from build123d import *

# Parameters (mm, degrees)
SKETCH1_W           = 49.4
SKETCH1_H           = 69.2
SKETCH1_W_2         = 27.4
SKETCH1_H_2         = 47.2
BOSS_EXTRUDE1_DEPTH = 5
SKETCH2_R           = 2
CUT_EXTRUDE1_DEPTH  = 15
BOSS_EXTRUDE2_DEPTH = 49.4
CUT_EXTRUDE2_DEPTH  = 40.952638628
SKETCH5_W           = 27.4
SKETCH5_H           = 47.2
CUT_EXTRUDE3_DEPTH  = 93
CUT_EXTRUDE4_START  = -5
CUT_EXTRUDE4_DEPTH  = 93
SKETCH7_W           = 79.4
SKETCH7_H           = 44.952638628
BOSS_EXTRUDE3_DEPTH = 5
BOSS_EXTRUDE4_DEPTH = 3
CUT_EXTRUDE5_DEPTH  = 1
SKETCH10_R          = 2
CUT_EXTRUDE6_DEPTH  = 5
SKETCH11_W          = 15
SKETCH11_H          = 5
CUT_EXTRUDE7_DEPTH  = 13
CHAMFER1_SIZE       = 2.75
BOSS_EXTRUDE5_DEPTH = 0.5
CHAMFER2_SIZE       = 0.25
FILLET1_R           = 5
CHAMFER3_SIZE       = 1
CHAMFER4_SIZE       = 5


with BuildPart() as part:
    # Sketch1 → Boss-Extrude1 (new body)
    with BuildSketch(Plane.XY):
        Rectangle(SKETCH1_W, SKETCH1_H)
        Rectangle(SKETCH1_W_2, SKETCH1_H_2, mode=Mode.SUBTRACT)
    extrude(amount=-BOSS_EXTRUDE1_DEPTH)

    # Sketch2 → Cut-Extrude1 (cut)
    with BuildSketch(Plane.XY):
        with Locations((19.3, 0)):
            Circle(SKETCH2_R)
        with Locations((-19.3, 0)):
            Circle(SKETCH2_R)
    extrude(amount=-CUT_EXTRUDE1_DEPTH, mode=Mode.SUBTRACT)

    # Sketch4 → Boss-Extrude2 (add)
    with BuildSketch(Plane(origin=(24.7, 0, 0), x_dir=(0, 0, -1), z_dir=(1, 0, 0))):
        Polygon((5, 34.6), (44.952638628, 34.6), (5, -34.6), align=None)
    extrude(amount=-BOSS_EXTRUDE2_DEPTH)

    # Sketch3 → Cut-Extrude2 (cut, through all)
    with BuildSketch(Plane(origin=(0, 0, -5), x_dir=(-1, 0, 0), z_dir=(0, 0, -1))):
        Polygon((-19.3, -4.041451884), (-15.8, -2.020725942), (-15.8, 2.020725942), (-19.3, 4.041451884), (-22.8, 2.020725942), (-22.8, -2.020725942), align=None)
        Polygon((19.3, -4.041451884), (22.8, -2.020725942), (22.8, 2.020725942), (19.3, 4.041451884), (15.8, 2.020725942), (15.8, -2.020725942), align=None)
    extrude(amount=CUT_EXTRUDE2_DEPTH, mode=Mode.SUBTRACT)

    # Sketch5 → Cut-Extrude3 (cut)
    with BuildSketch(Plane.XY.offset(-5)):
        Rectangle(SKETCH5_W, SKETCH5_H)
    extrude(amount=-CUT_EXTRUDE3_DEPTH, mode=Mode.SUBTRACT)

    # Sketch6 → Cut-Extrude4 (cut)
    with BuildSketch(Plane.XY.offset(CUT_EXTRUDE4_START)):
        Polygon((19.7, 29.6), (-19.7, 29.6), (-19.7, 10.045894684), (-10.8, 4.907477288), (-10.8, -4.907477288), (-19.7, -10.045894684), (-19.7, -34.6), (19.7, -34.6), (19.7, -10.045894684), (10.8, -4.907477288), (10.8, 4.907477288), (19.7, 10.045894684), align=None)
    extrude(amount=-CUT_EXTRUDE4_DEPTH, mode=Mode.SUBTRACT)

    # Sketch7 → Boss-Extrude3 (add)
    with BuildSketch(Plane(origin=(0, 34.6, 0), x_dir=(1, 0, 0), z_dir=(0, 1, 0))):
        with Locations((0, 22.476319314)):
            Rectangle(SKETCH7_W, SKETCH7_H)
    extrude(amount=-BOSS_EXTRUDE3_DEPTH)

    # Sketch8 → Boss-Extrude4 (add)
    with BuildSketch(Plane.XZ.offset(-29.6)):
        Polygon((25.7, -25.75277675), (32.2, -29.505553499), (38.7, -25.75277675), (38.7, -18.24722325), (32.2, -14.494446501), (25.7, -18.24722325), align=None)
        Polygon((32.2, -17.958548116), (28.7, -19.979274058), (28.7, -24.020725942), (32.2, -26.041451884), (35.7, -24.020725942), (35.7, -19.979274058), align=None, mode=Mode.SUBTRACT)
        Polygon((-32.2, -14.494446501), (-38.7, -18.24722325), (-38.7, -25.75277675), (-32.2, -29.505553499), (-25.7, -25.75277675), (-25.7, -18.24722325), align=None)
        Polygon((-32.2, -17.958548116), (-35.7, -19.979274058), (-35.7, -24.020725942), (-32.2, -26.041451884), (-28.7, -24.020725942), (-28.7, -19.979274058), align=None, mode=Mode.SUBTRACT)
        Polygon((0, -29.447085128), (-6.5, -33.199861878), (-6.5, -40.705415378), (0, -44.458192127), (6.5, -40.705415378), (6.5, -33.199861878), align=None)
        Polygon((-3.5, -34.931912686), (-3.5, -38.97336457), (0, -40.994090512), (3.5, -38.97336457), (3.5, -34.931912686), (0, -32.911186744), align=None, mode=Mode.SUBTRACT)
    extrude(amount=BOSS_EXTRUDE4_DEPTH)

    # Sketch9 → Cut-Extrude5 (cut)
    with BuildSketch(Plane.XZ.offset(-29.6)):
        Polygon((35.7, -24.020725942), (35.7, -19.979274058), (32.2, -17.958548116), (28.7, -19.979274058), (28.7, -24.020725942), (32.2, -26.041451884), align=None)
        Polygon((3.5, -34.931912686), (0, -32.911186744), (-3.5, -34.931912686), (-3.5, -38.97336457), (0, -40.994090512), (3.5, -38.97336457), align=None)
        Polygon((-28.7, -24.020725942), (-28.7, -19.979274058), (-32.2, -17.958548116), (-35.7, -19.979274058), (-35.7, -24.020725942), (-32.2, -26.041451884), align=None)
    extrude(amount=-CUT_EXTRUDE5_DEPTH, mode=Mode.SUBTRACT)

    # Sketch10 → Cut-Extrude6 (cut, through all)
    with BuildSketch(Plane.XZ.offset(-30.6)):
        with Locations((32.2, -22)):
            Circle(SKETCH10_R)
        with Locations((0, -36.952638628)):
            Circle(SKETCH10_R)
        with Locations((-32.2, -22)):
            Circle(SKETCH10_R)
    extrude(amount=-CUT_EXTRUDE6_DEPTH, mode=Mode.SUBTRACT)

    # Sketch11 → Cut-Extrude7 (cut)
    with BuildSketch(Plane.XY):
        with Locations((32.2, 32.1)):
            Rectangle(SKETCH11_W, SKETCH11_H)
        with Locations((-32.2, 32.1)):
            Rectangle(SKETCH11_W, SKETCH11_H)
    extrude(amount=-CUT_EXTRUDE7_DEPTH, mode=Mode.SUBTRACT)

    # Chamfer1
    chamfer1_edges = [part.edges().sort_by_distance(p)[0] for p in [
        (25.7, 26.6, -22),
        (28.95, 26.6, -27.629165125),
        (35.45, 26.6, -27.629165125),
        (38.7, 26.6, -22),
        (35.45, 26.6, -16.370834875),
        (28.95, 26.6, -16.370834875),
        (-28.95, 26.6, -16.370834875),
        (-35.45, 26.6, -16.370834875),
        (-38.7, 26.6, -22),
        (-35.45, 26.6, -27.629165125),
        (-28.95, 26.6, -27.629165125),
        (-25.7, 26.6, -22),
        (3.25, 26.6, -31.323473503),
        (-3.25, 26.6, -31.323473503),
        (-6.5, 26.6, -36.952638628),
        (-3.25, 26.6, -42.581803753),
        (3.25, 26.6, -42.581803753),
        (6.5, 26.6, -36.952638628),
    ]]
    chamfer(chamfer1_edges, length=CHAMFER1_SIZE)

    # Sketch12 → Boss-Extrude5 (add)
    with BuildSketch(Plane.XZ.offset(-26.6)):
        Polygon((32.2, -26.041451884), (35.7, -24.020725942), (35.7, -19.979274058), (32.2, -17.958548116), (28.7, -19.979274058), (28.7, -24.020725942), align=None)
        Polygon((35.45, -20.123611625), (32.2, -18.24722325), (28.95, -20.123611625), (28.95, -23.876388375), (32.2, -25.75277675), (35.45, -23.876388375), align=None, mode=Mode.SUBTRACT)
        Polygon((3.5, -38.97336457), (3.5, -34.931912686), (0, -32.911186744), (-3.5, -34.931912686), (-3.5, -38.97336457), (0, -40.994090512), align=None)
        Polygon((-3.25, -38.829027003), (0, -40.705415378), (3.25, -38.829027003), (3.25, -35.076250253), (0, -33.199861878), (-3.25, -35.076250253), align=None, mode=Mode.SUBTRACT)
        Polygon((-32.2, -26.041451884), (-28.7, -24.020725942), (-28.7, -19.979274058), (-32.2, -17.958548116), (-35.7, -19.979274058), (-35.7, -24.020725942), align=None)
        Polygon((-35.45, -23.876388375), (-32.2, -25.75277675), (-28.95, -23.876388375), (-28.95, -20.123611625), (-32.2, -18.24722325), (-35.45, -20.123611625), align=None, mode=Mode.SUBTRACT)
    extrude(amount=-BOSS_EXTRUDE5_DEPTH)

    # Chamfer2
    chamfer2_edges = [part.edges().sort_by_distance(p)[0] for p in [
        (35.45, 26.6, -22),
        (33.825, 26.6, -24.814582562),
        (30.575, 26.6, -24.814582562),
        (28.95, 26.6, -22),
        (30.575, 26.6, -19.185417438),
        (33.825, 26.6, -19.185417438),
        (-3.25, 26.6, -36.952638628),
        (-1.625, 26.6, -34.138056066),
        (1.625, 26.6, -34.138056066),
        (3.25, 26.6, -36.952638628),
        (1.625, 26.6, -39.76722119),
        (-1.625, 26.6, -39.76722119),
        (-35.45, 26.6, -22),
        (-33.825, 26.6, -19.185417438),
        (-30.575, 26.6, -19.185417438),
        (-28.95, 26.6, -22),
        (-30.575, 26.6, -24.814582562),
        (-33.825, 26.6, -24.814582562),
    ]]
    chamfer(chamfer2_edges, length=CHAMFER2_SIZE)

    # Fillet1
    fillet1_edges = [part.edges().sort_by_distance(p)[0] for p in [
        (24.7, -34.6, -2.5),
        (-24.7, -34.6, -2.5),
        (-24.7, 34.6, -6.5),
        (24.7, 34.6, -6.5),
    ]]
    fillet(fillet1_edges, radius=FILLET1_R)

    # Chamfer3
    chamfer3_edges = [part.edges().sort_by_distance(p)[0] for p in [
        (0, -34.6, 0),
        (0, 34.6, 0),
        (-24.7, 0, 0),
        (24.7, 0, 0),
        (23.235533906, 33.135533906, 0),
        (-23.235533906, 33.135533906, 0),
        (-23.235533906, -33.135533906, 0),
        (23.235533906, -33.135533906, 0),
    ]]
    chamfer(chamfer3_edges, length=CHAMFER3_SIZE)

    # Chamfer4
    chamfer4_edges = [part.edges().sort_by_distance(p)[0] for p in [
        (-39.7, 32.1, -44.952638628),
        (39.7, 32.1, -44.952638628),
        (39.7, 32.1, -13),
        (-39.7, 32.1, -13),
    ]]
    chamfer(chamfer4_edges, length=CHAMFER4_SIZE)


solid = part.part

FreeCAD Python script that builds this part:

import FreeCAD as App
import Part
import Sketcher

V = App.Vector
Q = App.Units.Quantity


def edges_at(feature, points):
    """Names of the edges that pass closest to the given points."""
    edges = feature.Shape.Edges
    near = lambda p: min(range(len(edges)), key=lambda i: edges[i].distToShape(Part.Vertex(*p))[0])
    return sorted({f"Edge{near(p) + 1}" for p in points})


def add_polygon(sketch, points):
    """Adds a closed chain of lines whose ends are joined by coincident constraints."""
    first, n = sketch.GeometryCount, len(points)
    for a, b in zip(points, points[1:] + points[:1]):
        sketch.addGeometry(Part.LineSegment(App.Vector(*a, 0), App.Vector(*b, 0)), False)
    for i in range(n):
        sketch.addConstraint(Sketcher.Constraint("Coincident", first + i, 2, first + (i + 1) % n, 1))

doc = App.newDocument("Part")
body = doc.addObject("PartDesign::Body", "Body")

# Sketch on XY plane
sketch1 = doc.addObject("Sketcher::SketchObject", "Sketch")
body.addObject(sketch1)
sketch1.AttachmentSupport = (doc.XY_Plane, [""])
sketch1.MapMode = "FlatFace"
add_polygon(sketch1, [(-25, 35), (-25, -35), (25, -35), (25, 35)])  # lines 0-3
add_polygon(sketch1, [(14, -24), (-14, -24), (-14, 24), (14, 24)])  # lines 4-7
sketch1.addConstraint([
    Sketcher.Constraint("Vertical", 0),
    Sketcher.Constraint("Horizontal", 1),
    Sketcher.Constraint("Vertical", 2),
    Sketcher.Constraint("Horizontal", 3),
    Sketcher.Constraint("Horizontal", 4),
    Sketcher.Constraint("Vertical", 5),
    Sketcher.Constraint("Horizontal", 6),
    Sketcher.Constraint("Vertical", 7),
    Sketcher.Constraint("Symmetric", 0, 2, 2, 2, -1, 1),
    Sketcher.Constraint("Symmetric", 4, 2, 6, 2, -1, 1),
    Sketcher.Constraint("DistanceX", 1, 1, 1, 2, 49.4),
    Sketcher.Constraint("DistanceX", 4, 2, 4, 1, 27.4),
    Sketcher.Constraint("DistanceY", 0, 2, 0, 1, 69.2),
    Sketcher.Constraint("DistanceY", 5, 1, 5, 2, 47.2),
])
pad1 = doc.addObject("PartDesign::Pad", "Pad")
body.addObject(pad1)
pad1.Profile = sketch1
pad1.Length = 5
pad1.Reversed = True

# Sketch on XY plane
sketch2 = doc.addObject("Sketcher::SketchObject", "Sketch001")
body.addObject(sketch2)
sketch2.AttachmentSupport = (doc.XY_Plane, [""])
sketch2.MapMode = "FlatFace"
sketch2.addGeometry([
    Part.Circle(V(19.3, 0, 0), V(0, 0, 1), 2),
    Part.Circle(V(-19.3, 0, 0), V(0, 0, 1), 2),
], False)
sketch2.addConstraint([
    Sketcher.Constraint("Equal", 0, 1),
    Sketcher.Constraint("Symmetric", 0, 3, 1, 3, -1, 1),
    Sketcher.Constraint("PointOnObject", 0, 3, -1),
    Sketcher.Constraint("Diameter", 0, 4.0),
    Sketcher.Constraint("DistanceX", -1, 1, 0, 3, 19.3),
])
pocket1 = doc.addObject("PartDesign::Pocket", "Pocket")
body.addObject(pocket1)
pocket1.Profile = sketch2
pocket1.Length = 15

# Sketch on YZ plane
sketch3 = doc.addObject("Sketcher::SketchObject", "Sketch002")
body.addObject(sketch3)
sketch3.AttachmentSupport = (doc.YZ_Plane, [""])
sketch3.MapMode = "FlatFace"
sketch3.AttachmentOffset = App.Placement(V(0, 0, 24.7), App.Rotation())
add_polygon(sketch3, [(35, -45), (35, -5), (-35, -5)])  # lines 0-2
sketch3.addConstraint([
    Sketcher.Constraint("Vertical", 0),
    Sketcher.Constraint("Horizontal", 1),
    Sketcher.Constraint("Angle", 2, Q("-30 deg")),
    Sketcher.Constraint("DistanceX", 1, 2, 1, 1, 69.2),
    Sketcher.Constraint("DistanceY", 0, 2, -1, 1, 5.0),
    Sketcher.Constraint("DistanceX", -1, 1, 0, 2, 34.6),
])
pad2 = doc.addObject("PartDesign::Pad", "Pad001")
body.addObject(pad2)
pad2.Profile = sketch3
pad2.Length = 49.4
pad2.Reversed = True

# Sketch on XY plane
sketch4 = doc.addObject("Sketcher::SketchObject", "Sketch003")
body.addObject(sketch4)
sketch4.AttachmentSupport = (doc.XY_Plane, [""])
sketch4.MapMode = "FlatFace"
sketch4.AttachmentOffset = App.Placement(V(0, 0, -5), App.Rotation())
add_polygon(sketch4, [(19.3, -4), (15.8, -2), (15.8, 2), (19.3, 4), (22.8, 2), (22.8, -2)])  # lines 0-5
add_polygon(sketch4, [(-19.3, -4), (-22.8, -2), (-22.8, 2), (-19.3, 4), (-15.8, 2), (-15.8, -2)])  # lines 6-11
sketch4.addConstraint([
    Sketcher.Constraint("Vertical", 1),
    Sketcher.Constraint("Vertical", 4),
    Sketcher.Constraint("Vertical", 7),
    Sketcher.Constraint("Vertical", 10),
    Sketcher.Constraint("Symmetric", 3, 2, 6, 2, -1, 1),
    Sketcher.Constraint("Symmetric", 5, 2, 8, 2, -1, 1),
    Sketcher.Constraint("Symmetric", 0, 2, 9, 2, -1, 1),
    Sketcher.Constraint("Symmetric", 2, 2, 11, 2, -1, 1),
    Sketcher.Constraint("Symmetric", 2, 2, 8, 2, -2),
    Sketcher.Constraint("Parallel", 0, 3),
    Sketcher.Constraint("Parallel", 2, 5),
    Sketcher.Constraint("Parallel", 5, 8),
    Sketcher.Constraint("Parallel", 8, 11),
    Sketcher.Constraint("Horizontal", 1, 2, 3, 2),
    Sketcher.Constraint("Horizontal", 0, 2, 4, 2),
    Sketcher.Constraint("Angle", 0, Q("150 deg")),
    Sketcher.Constraint("DistanceX", 1, 2, 3, 2, 7.0),
    Sketcher.Constraint("DistanceX", -1, 1, 0, 2, 15.8),
    Sketcher.Constraint("DistanceY", 1, 1, 1, 2, 4.041452),
])
pocket2 = doc.addObject("PartDesign::Pocket", "Pocket001")
body.addObject(pocket2)
pocket2.Profile = sketch4
pocket2.Type = "ThroughAll"

# Sketch on XY plane
sketch5 = doc.addObject("Sketcher::SketchObject", "Sketch004")
body.addObject(sketch5)
sketch5.AttachmentSupport = (doc.XY_Plane, [""])
sketch5.MapMode = "FlatFace"
sketch5.AttachmentOffset = App.Placement(V(0, 0, -5), App.Rotation())
add_polygon(sketch5, [(-14, 24), (-14, -24), (14, -24), (14, 24)])  # lines 0-3
sketch5.addConstraint([
    Sketcher.Constraint("Vertical", 0),
    Sketcher.Constraint("Horizontal", 1),
    Sketcher.Constraint("Vertical", 2),
    Sketcher.Constraint("Horizontal", 3),
    Sketcher.Constraint("Symmetric", 0, 2, 2, 2, -1, 1),
    Sketcher.Constraint("DistanceX", 1, 1, 1, 2, 27.4),
    Sketcher.Constraint("DistanceY", 0, 2, 0, 1, 47.2),
])
pocket3 = doc.addObject("PartDesign::Pocket", "Pocket002")
body.addObject(pocket3)
pocket3.Profile = sketch5
pocket3.Length = 93

# Sketch on XY plane
sketch6 = doc.addObject("Sketcher::SketchObject", "Sketch005")
body.addObject(sketch6)
sketch6.AttachmentSupport = (doc.XY_Plane, [""])
sketch6.MapMode = "FlatFace"
sketch6.AttachmentOffset = App.Placement(V(0, 0, -5), App.Rotation())
add_polygon(sketch6, [(20, 30), (-20, 30), (-20, 10), (-11, 5), (-11, -5), (-20, -10), (-20, -35), (20, -35), (20, -10), (11, -5), (11, 5), (20, 10)])  # lines 0-11
sketch6.addConstraint([
    Sketcher.Constraint("Horizontal", 0),
    Sketcher.Constraint("Vertical", 1),
    Sketcher.Constraint("Vertical", 3),
    Sketcher.Constraint("Vertical", 5),
    Sketcher.Constraint("Horizontal", 6),
    Sketcher.Constraint("Vertical", 7),
    Sketcher.Constraint("Vertical", 9),
    Sketcher.Constraint("Vertical", 11),
    Sketcher.Constraint("Symmetric", 1, 2, 7, 2, -1, 1),
    Sketcher.Constraint("Symmetric", 2, 2, 8, 2, -1, 1),
    Sketcher.Constraint("Symmetric", 4, 2, 10, 2, -1, 1),
    Sketcher.Constraint("Symmetric", 4, 2, 7, 2, -2),
    Sketcher.Constraint("Parallel", 4, 10),
    Sketcher.Constraint("Horizontal", 3, 2, 8, 2),
    Sketcher.Constraint("Angle", 2, Q("-30 deg")),
    Sketcher.Constraint("DistanceX", 0, 2, 0, 1, 39.4),
    Sketcher.Constraint("DistanceY", -1, 1, 0, 2, 29.6),
    Sketcher.Constraint("DistanceX", 2, 2, -1, 1, 10.8),
    Sketcher.Constraint("DistanceY", 5, 2, -1, 1, 34.6),
    Sketcher.Constraint("DistanceY", 1, 2, 1, 1, 19.554105),
])
pocket4 = doc.addObject("PartDesign::Pocket", "Pocket003")
body.addObject(pocket4)
pocket4.Profile = sketch6
pocket4.Length = 93

# Sketch on XZ plane
sketch7 = doc.addObject("Sketcher::SketchObject", "Sketch006")
body.addObject(sketch7)
sketch7.AttachmentSupport = (doc.XZ_Plane, [""])
sketch7.MapMode = "FlatFace"
sketch7.AttachmentOffset = App.Placement(V(0, 0, -34.6), App.Rotation())
add_polygon(sketch7, [(-40, -45), (-40, 0), (40, 0), (40, -45)])  # lines 0-3
sketch7.addConstraint([
    Sketcher.Constraint("Vertical", 0),
    Sketcher.Constraint("Horizontal", 1),
    Sketcher.Constraint("Vertical", 2),
    Sketcher.Constraint("Horizontal", 3),
    Sketcher.Constraint("Symmetric", 0, 2, 1, 2, -1, 1),
    Sketcher.Constraint("DistanceX", 1, 1, 1, 2, 79.4),
    Sketcher.Constraint("DistanceY", 0, 1, 0, 2, 44.952639),
])
pad3 = doc.addObject("PartDesign::Pad", "Pad002")
body.addObject(pad3)
pad3.Profile = sketch7
pad3.Length = 5

# Sketch on XZ plane
sketch8 = doc.addObject("Sketcher::SketchObject", "Sketch007")
body.addObject(sketch8)
sketch8.AttachmentSupport = (doc.XZ_Plane, [""])
sketch8.MapMode = "FlatFace"
sketch8.AttachmentOffset = App.Placement(V(0, 0, -29.6), App.Rotation())
add_polygon(sketch8, [(25.7, -25.8), (32.2, -29.5), (38.7, -25.8), (38.7, -18.2), (32.2, -14.5), (25.7, -18.2)])  # lines 0-5
add_polygon(sketch8, [(28.7, -20), (32.2, -18), (35.7, -20), (35.7, -24), (32.2, -26), (28.7, -24)])  # lines 6-11
add_polygon(sketch8, [(-32.2, -14.5), (-38.7, -18.2), (-38.7, -25.8), (-32.2, -29.5), (-25.7, -25.8), (-25.7, -18.2)])  # lines 12-17
add_polygon(sketch8, [(-35.7, -20), (-32.2, -18), (-28.7, -20), (-28.7, -24), (-32.2, -26), (-35.7, -24)])  # lines 18-23
add_polygon(sketch8, [(0, -29.4), (-6.5, -33.2), (-6.5, -40.7), (0, -44.5), (6.5, -40.7), (6.5, -33.2)])  # lines 24-29
add_polygon(sketch8, [(-3.5, -39), (-3.5, -34.9), (0, -32.9), (3.5, -34.9), (3.5, -39), (0, -41)])  # lines 30-35
sketch8.addConstraint([
    Sketcher.Constraint("Vertical", 2),
    Sketcher.Constraint("Vertical", 5),
    Sketcher.Constraint("Vertical", 8),
    Sketcher.Constraint("Vertical", 11),
    Sketcher.Constraint("Vertical", 13),
    Sketcher.Constraint("Vertical", 16),
    Sketcher.Constraint("Vertical", 20),
    Sketcher.Constraint("Vertical", 23),
    Sketcher.Constraint("Vertical", 25),
    Sketcher.Constraint("Vertical", 28),
    Sketcher.Constraint("Vertical", 30),
    Sketcher.Constraint("Vertical", 33),
    Sketcher.Constraint("Symmetric", 2, 2, 12, 2, -2),
    Sketcher.Constraint("Symmetric", 0, 2, 14, 2, -2),
    Sketcher.Constraint("Symmetric", 5, 2, 15, 2, -2),
    Sketcher.Constraint("Symmetric", 3, 2, 17, 2, -2),
    Sketcher.Constraint("Symmetric", 6, 2, 18, 2, -2),
    Sketcher.Constraint("Symmetric", 11, 2, 19, 2, -2),
    Sketcher.Constraint("Symmetric", 9, 2, 21, 2, -2),
    Sketcher.Constraint("Symmetric", 8, 2, 22, 2, -2),
    Sketcher.Constraint("Symmetric", 25, 2, 27, 2, -2),
    Sketcher.Constraint("Symmetric", 30, 2, 32, 2, -2),
    Sketcher.Constraint("PointOnObject", 26, 2, -2),
    Sketcher.Constraint("PointOnObject", 29, 2, -2),
    Sketcher.Constraint("PointOnObject", 31, 2, -2),
    Sketcher.Constraint("PointOnObject", 34, 2, -2),
    Sketcher.Constraint("Parallel", 0, 3),
    Sketcher.Constraint("Parallel", 1, 4),
    Sketcher.Constraint("Parallel", 4, 6),
    Sketcher.Constraint("Parallel", 3, 7),
    Sketcher.Constraint("Parallel", 6, 9),
    Sketcher.Constraint("Parallel", 7, 10),
    Sketcher.Constraint("Parallel", 9, 12),
    Sketcher.Constraint("Parallel", 10, 14),
    Sketcher.Constraint("Parallel", 14, 17),
    Sketcher.Constraint("Parallel", 15, 18),
    Sketcher.Constraint("Parallel", 18, 21),
    Sketcher.Constraint("Parallel", 21, 24),
    Sketcher.Constraint("Parallel", 22, 26),
    Sketcher.Constraint("Parallel", 26, 29),
    Sketcher.Constraint("Parallel", 27, 31),
    Sketcher.Constraint("Parallel", 31, 34),
    Sketcher.Constraint("Parallel", 32, 35),
    Sketcher.Constraint("Horizontal", 2, 2, 4, 2),
    Sketcher.Constraint("Horizontal", 1, 2, 5, 2),
    Sketcher.Constraint("Horizontal", 8, 2, 10, 2),
    Sketcher.Constraint("Horizontal", 7, 2, 11, 2),
    Sketcher.Constraint("Vertical", 3, 2, 6, 2),
    Sketcher.Constraint("Equal", 16, 25),
    Sketcher.Constraint("Equal", 23, 30),
    Sketcher.Constraint("Equal", 17, 24),
    Sketcher.Constraint("Equal", 22, 31),
    Sketcher.Constraint("Angle", 0, Q("-30 deg")),
    Sketcher.Constraint("DistanceX", 4, 2, 2, 2, 13.0),
    Sketcher.Constraint("DistanceX", 7, 2, 2, 2, 3.0),
    Sketcher.Constraint("DistanceX", -1, 1, 0, 2, 32.2),
    Sketcher.Constraint("DistanceY", 8, 2, 8, 1, 4.041452),
    Sketcher.Constraint("DistanceY", 6, 2, 3, 2, 3.464102),
    Sketcher.Constraint("DistanceY", 0, 2, 9, 2, 3.464102),
    Sketcher.Constraint("DistanceY", 31, 2, 29, 2, 3.464102),
    Sketcher.Constraint("DistanceY", 6, 2, -1, 1, 17.958548),
    Sketcher.Constraint("DistanceY", 24, 2, -1, 1, 33.199862),
])
pad4 = doc.addObject("PartDesign::Pad", "Pad003")
body.addObject(pad4)
pad4.Profile = sketch8
pad4.Length = 3

# Sketch on XZ plane
sketch9 = doc.addObject("Sketcher::SketchObject", "Sketch008")
body.addObject(sketch9)
sketch9.AttachmentSupport = (doc.XZ_Plane, [""])
sketch9.MapMode = "FlatFace"
sketch9.AttachmentOffset = App.Placement(V(0, 0, -29.6), App.Rotation())
add_polygon(sketch9, [(35.7, -24), (35.7, -20), (32.2, -18), (28.7, -20), (28.7, -24), (32.2, -26)])  # lines 0-5
add_polygon(sketch9, [(3.5, -34.9), (0, -32.9), (-3.5, -34.9), (-3.5, -39), (0, -41), (3.5, -39)])  # lines 6-11
add_polygon(sketch9, [(-28.7, -24), (-28.7, -20), (-32.2, -18), (-35.7, -20), (-35.7, -24), (-32.2, -26)])  # lines 12-17
sketch9.addConstraint([
    Sketcher.Constraint("Vertical", 0),
    Sketcher.Constraint("Vertical", 3),
    Sketcher.Constraint("Vertical", 8),
    Sketcher.Constraint("Vertical", 11),
    Sketcher.Constraint("Vertical", 12),
    Sketcher.Constraint("Vertical", 15),
    Sketcher.Constraint("Symmetric", 8, 2, 10, 2, -2),
    Sketcher.Constraint("Symmetric", 2, 2, 12, 2, -2),
    Sketcher.Constraint("Symmetric", 1, 2, 13, 2, -2),
    Sketcher.Constraint("Symmetric", 0, 2, 14, 2, -2),
    Sketcher.Constraint("Symmetric", 4, 2, 16, 2, -2),
    Sketcher.Constraint("PointOnObject", 6, 2, -2),
    Sketcher.Constraint("PointOnObject", 9, 2, -2),
    Sketcher.Constraint("Parallel", 1, 4),
    Sketcher.Constraint("Parallel", 2, 5),
    Sketcher.Constraint("Parallel", 4, 6),
    Sketcher.Constraint("Parallel", 5, 7),
    Sketcher.Constraint("Parallel", 6, 9),
    Sketcher.Constraint("Parallel", 7, 10),
    Sketcher.Constraint("Parallel", 13, 16),
    Sketcher.Constraint("Parallel", 14, 17),
    Sketcher.Constraint("Horizontal", 0, 2, 2, 2),
    Sketcher.Constraint("Horizontal", 3, 2, 5, 2),
    Sketcher.Constraint("Equal", 3, 8),
    Sketcher.Constraint("Equal", 5, 6),
    Sketcher.Constraint("Angle", 1, Q("150 deg")),
    Sketcher.Constraint("DistanceX", 2, 2, 0, 2, 7.0),
    Sketcher.Constraint("DistanceX", -1, 1, 0, 2, 35.7),
    Sketcher.Constraint("DistanceY", 0, 1, 0, 2, 4.041452),
    Sketcher.Constraint("DistanceY", 1, 2, -1, 1, 17.958548),
    Sketcher.Constraint("DistanceY", 9, 2, -1, 1, 40.994091),
])
pocket5 = doc.addObject("PartDesign::Pocket", "Pocket004")
body.addObject(pocket5)
pocket5.Profile = sketch9
pocket5.Length = 1

# Sketch on XZ plane
sketch10 = doc.addObject("Sketcher::SketchObject", "Sketch009")
body.addObject(sketch10)
sketch10.AttachmentSupport = (doc.XZ_Plane, [""])
sketch10.MapMode = "FlatFace"
sketch10.AttachmentOffset = App.Placement(V(0, 0, -30.6), App.Rotation())
sketch10.addGeometry([
    Part.Circle(V(32.2, -22, 0), V(0, 0, 1), 2),
    Part.Circle(V(0, -37, 0), V(0, 0, 1), 2),
    Part.Circle(V(-32.2, -22, 0), V(0, 0, 1), 2),
], False)
sketch10.addConstraint([
    Sketcher.Constraint("Equal", 0, 1),
    Sketcher.Constraint("Equal", 1, 2),
    Sketcher.Constraint("Symmetric", 0, 3, 2, 3, -2),
    Sketcher.Constraint("PointOnObject", 1, 3, -2),
    Sketcher.Constraint("Diameter", 0, 4.0),
    Sketcher.Constraint("DistanceY", 0, 3, -1, 1, 22.0),
    Sketcher.Constraint("DistanceX", -1, 1, 0, 3, 32.2),
    Sketcher.Constraint("DistanceY", 1, 3, -1, 1, 36.952639),
])
pocket6 = doc.addObject("PartDesign::Pocket", "Pocket005")
body.addObject(pocket6)
pocket6.Profile = sketch10
pocket6.Type = "ThroughAll"

# Sketch on XY plane
sketch11 = doc.addObject("Sketcher::SketchObject", "Sketch010")
body.addObject(sketch11)
sketch11.AttachmentSupport = (doc.XY_Plane, [""])
sketch11.MapMode = "FlatFace"
add_polygon(sketch11, [(25, 35), (25, 30), (40, 30), (40, 35)])  # lines 0-3
add_polygon(sketch11, [(-40, 35), (-40, 30), (-25, 30), (-25, 35)])  # lines 4-7
sketch11.addConstraint([
    Sketcher.Constraint("Vertical", 0),
    Sketcher.Constraint("Horizontal", 1),
    Sketcher.Constraint("Vertical", 2),
    Sketcher.Constraint("Horizontal", 3),
    Sketcher.Constraint("Vertical", 4),
    Sketcher.Constraint("Horizontal", 5),
    Sketcher.Constraint("Vertical", 6),
    Sketcher.Constraint("Horizontal", 7),
    Sketcher.Constraint("Symmetric", 1, 2, 4, 2, -2),
    Sketcher.Constraint("Symmetric", 3, 2, 6, 2, -2),
    Sketcher.Constraint("DistanceX", 1, 1, 1, 2, 15.0),
    Sketcher.Constraint("DistanceY", 0, 2, 0, 1, 5.0),
    Sketcher.Constraint("DistanceX", -1, 1, 0, 2, 24.7),
    Sketcher.Constraint("DistanceY", -1, 1, 0, 2, 29.6),
])
pocket7 = doc.addObject("PartDesign::Pocket", "Pocket006")
body.addObject(pocket7)
pocket7.Profile = sketch11
pocket7.Length = 13
doc.recompute()

chamfer = doc.addObject("PartDesign::Chamfer", "Chamfer")
body.addObject(chamfer)
chamfer.Base = (pocket7, edges_at(pocket7, [
    (25.7, 26.6, -22),
    (28.95, 26.6, -27.629),
    (35.45, 26.6, -27.629),
    (38.7, 26.6, -22),
    (35.45, 26.6, -16.371),
    (28.95, 26.6, -16.371),
    (-28.95, 26.6, -16.371),
    (-35.45, 26.6, -16.371),
    (-38.7, 26.6, -22),
    (-35.45, 26.6, -27.629),
    (-28.95, 26.6, -27.629),
    (-25.7, 26.6, -22),
    (3.25, 26.6, -31.323),
    (-3.25, 26.6, -31.323),
    (-6.5, 26.6, -36.953),
    (-3.25, 26.6, -42.582),
    (3.25, 26.6, -42.582),
    (6.5, 26.6, -36.953),
]))
chamfer.Size = 2.75

# Sketch on XZ plane
sketch12 = doc.addObject("Sketcher::SketchObject", "Sketch011")
body.addObject(sketch12)
sketch12.AttachmentSupport = (doc.XZ_Plane, [""])
sketch12.MapMode = "FlatFace"
sketch12.AttachmentOffset = App.Placement(V(0, 0, -26.6), App.Rotation())
add_polygon(sketch12, [(32.2, -26), (35.7, -24), (35.7, -20), (32.2, -18), (28.7, -20), (28.7, -24)])  # lines 0-5
add_polygon(sketch12, [(32.2, -18.2), (35.5, -20.1), (35.5, -23.9), (32.2, -25.8), (28.9, -23.9), (28.9, -20.1)])  # lines 6-11
add_polygon(sketch12, [(3.5, -39), (3.5, -34.9), (0, -32.9), (-3.5, -34.9), (-3.5, -39), (0, -41)])  # lines 12-17
add_polygon(sketch12, [(0, -40.7), (-3.2, -38.8), (-3.2, -35.1), (0, -33.2), (3.2, -35.1), (3.2, -38.8)])  # lines 18-23
add_polygon(sketch12, [(-32.2, -26), (-28.7, -24), (-28.7, -20), (-32.2, -18), (-35.7, -20), (-35.7, -24)])  # lines 24-29
add_polygon(sketch12, [(-32.2, -25.8), (-35.5, -23.9), (-35.5, -20.1), (-32.2, -18.2), (-28.9, -20.1), (-28.9, -23.9)])  # lines 30-35
sketch12.addConstraint([
    Sketcher.Constraint("Vertical", 1),
    Sketcher.Constraint("Vertical", 4),
    Sketcher.Constraint("Vertical", 7),
    Sketcher.Constraint("Vertical", 10),
    Sketcher.Constraint("Vertical", 12),
    Sketcher.Constraint("Vertical", 15),
    Sketcher.Constraint("Vertical", 19),
    Sketcher.Constraint("Vertical", 22),
    Sketcher.Constraint("Vertical", 25),
    Sketcher.Constraint("Vertical", 28),
    Sketcher.Constraint("Vertical", 31),
    Sketcher.Constraint("Vertical", 34),
    Sketcher.Constraint("Symmetric", 12, 2, 14, 2, -2),
    Sketcher.Constraint("Symmetric", 19, 2, 21, 2, -2),
    Sketcher.Constraint("Symmetric", 4, 2, 24, 2, -2),
    Sketcher.Constraint("Symmetric", 2, 2, 26, 2, -2),
    Sketcher.Constraint("Symmetric", 1, 2, 27, 2, -2),
    Sketcher.Constraint("Symmetric", 5, 2, 29, 2, -2),
    Sketcher.Constraint("Symmetric", 7, 2, 30, 2, -2),
    Sketcher.Constraint("Symmetric", 11, 2, 32, 2, -2),
    Sketcher.Constraint("Symmetric", 10, 2, 33, 2, -2),
    Sketcher.Constraint("Symmetric", 8, 2, 35, 2, -2),
    Sketcher.Constraint("PointOnObject", 13, 2, -2),
    Sketcher.Constraint("PointOnObject", 16, 2, -2),
    Sketcher.Constraint("PointOnObject", 20, 2, -2),
    Sketcher.Constraint("PointOnObject", 23, 2, -2),
    Sketcher.Constraint("Parallel", 0, 3),
    Sketcher.Constraint("Parallel", 2, 5),
    Sketcher.Constraint("Parallel", 5, 6),
    Sketcher.Constraint("Parallel", 3, 8),
    Sketcher.Constraint("Parallel", 6, 9),
    Sketcher.Constraint("Parallel", 8, 11),
    Sketcher.Constraint("Parallel", 9, 13),
    Sketcher.Constraint("Parallel", 11, 14),
    Sketcher.Constraint("Parallel", 13, 16),
    Sketcher.Constraint("Parallel", 14, 17),
    Sketcher.Constraint("Parallel", 16, 18),
    Sketcher.Constraint("Parallel", 17, 20),
    Sketcher.Constraint("Parallel", 20, 23),
    Sketcher.Constraint("Parallel", 21, 26),
    Sketcher.Constraint("Parallel", 26, 29),
    Sketcher.Constraint("Parallel", 27, 32),
    Sketcher.Constraint("Parallel", 32, 35),
    Sketcher.Constraint("Horizontal", 1, 2, 3, 2),
    Sketcher.Constraint("Horizontal", 0, 2, 4, 2),
    Sketcher.Constraint("Horizontal", 7, 2, 9, 2),
    Sketcher.Constraint("Horizontal", 6, 2, 10, 2),
    Sketcher.Constraint("Vertical", 5, 2, 8, 2),
    Sketcher.Constraint("Equal", 4, 12),
    Sketcher.Constraint("Equal", 10, 19),
    Sketcher.Constraint("Equal", 5, 13),
    Sketcher.Constraint("Equal", 11, 18),
    Sketcher.Constraint("Angle", 0, Q("30 deg")),
    Sketcher.Constraint("DistanceX", 3, 2, 1, 2, 7.0),
    Sketcher.Constraint("DistanceX", -1, 1, 0, 2, 35.7),
    Sketcher.Constraint("DistanceX", 9, 2, 7, 2, 6.5),
    Sketcher.Constraint("DistanceY", 1, 1, 1, 2, 4.041452),
    Sketcher.Constraint("DistanceY", 12, 2, 10, 2, 14.808301),
    Sketcher.Constraint("DistanceY", 13, 2, 9, 2, 9.034798),
    Sketcher.Constraint("DistanceY", 18, 2, 24, 2, 14.808301),
    Sketcher.Constraint("DistanceY", 2, 2, -1, 1, 17.958548),
    Sketcher.Constraint("DistanceY", 6, 2, -1, 1, 20.123612),
])
pad5 = doc.addObject("PartDesign::Pad", "Pad004")
body.addObject(pad5)
pad5.Profile = sketch12
pad5.Length = 0.5
pad5.Reversed = True
doc.recompute()

chamfer2 = doc.addObject("PartDesign::Chamfer", "Chamfer001")
body.addObject(chamfer2)
chamfer2.Base = (pad5, edges_at(pad5, [
    (35.45, 26.6, -22),
    (33.825, 26.6, -24.815),
    (30.575, 26.6, -24.815),
    (28.95, 26.6, -22),
    (30.575, 26.6, -19.185),
    (33.825, 26.6, -19.185),
    (-3.25, 26.6, -36.953),
    (-1.625, 26.6, -34.138),
    (1.625, 26.6, -34.138),
    (3.25, 26.6, -36.953),
    (1.625, 26.6, -39.767),
    (-1.625, 26.6, -39.767),
    (-35.45, 26.6, -22),
    (-33.825, 26.6, -19.185),
    (-30.575, 26.6, -19.185),
    (-28.95, 26.6, -22),
    (-30.575, 26.6, -24.815),
    (-33.825, 26.6, -24.815),
]))
chamfer2.Size = 0.25
doc.recompute()

fillet = doc.addObject("PartDesign::Fillet", "Fillet")
body.addObject(fillet)
fillet.Base = (chamfer2, edges_at(chamfer2, [
    (24.7, -34.6, -2.5),
    (-24.7, -34.6, -2.5),
    (-24.7, 34.6, -6.5),
    (24.7, 34.6, -6.5),
]))
fillet.Radius = 5
doc.recompute()

chamfer3 = doc.addObject("PartDesign::Chamfer", "Chamfer002")
body.addObject(chamfer3)
chamfer3.Base = (fillet, edges_at(fillet, [
    (0, -34.6, 0),
    (0, 34.6, 0),
    (-24.7, 0, 0),
    (24.7, 0, 0),
    (23.236, 33.136, 0),
    (-23.236, 33.136, 0),
    (-23.236, -33.136, 0),
    (23.236, -33.136, 0),
]))
chamfer3.Size = 1
doc.recompute()

chamfer4 = doc.addObject("PartDesign::Chamfer", "Chamfer003")
body.addObject(chamfer4)
chamfer4.Base = (chamfer3, edges_at(chamfer3, [
    (-39.7, 32.1, -44.953),
    (39.7, 32.1, -44.953),
    (39.7, 32.1, -13),
    (-39.7, 32.1, -13),
]))
chamfer4.Size = 5

doc.recompute()
